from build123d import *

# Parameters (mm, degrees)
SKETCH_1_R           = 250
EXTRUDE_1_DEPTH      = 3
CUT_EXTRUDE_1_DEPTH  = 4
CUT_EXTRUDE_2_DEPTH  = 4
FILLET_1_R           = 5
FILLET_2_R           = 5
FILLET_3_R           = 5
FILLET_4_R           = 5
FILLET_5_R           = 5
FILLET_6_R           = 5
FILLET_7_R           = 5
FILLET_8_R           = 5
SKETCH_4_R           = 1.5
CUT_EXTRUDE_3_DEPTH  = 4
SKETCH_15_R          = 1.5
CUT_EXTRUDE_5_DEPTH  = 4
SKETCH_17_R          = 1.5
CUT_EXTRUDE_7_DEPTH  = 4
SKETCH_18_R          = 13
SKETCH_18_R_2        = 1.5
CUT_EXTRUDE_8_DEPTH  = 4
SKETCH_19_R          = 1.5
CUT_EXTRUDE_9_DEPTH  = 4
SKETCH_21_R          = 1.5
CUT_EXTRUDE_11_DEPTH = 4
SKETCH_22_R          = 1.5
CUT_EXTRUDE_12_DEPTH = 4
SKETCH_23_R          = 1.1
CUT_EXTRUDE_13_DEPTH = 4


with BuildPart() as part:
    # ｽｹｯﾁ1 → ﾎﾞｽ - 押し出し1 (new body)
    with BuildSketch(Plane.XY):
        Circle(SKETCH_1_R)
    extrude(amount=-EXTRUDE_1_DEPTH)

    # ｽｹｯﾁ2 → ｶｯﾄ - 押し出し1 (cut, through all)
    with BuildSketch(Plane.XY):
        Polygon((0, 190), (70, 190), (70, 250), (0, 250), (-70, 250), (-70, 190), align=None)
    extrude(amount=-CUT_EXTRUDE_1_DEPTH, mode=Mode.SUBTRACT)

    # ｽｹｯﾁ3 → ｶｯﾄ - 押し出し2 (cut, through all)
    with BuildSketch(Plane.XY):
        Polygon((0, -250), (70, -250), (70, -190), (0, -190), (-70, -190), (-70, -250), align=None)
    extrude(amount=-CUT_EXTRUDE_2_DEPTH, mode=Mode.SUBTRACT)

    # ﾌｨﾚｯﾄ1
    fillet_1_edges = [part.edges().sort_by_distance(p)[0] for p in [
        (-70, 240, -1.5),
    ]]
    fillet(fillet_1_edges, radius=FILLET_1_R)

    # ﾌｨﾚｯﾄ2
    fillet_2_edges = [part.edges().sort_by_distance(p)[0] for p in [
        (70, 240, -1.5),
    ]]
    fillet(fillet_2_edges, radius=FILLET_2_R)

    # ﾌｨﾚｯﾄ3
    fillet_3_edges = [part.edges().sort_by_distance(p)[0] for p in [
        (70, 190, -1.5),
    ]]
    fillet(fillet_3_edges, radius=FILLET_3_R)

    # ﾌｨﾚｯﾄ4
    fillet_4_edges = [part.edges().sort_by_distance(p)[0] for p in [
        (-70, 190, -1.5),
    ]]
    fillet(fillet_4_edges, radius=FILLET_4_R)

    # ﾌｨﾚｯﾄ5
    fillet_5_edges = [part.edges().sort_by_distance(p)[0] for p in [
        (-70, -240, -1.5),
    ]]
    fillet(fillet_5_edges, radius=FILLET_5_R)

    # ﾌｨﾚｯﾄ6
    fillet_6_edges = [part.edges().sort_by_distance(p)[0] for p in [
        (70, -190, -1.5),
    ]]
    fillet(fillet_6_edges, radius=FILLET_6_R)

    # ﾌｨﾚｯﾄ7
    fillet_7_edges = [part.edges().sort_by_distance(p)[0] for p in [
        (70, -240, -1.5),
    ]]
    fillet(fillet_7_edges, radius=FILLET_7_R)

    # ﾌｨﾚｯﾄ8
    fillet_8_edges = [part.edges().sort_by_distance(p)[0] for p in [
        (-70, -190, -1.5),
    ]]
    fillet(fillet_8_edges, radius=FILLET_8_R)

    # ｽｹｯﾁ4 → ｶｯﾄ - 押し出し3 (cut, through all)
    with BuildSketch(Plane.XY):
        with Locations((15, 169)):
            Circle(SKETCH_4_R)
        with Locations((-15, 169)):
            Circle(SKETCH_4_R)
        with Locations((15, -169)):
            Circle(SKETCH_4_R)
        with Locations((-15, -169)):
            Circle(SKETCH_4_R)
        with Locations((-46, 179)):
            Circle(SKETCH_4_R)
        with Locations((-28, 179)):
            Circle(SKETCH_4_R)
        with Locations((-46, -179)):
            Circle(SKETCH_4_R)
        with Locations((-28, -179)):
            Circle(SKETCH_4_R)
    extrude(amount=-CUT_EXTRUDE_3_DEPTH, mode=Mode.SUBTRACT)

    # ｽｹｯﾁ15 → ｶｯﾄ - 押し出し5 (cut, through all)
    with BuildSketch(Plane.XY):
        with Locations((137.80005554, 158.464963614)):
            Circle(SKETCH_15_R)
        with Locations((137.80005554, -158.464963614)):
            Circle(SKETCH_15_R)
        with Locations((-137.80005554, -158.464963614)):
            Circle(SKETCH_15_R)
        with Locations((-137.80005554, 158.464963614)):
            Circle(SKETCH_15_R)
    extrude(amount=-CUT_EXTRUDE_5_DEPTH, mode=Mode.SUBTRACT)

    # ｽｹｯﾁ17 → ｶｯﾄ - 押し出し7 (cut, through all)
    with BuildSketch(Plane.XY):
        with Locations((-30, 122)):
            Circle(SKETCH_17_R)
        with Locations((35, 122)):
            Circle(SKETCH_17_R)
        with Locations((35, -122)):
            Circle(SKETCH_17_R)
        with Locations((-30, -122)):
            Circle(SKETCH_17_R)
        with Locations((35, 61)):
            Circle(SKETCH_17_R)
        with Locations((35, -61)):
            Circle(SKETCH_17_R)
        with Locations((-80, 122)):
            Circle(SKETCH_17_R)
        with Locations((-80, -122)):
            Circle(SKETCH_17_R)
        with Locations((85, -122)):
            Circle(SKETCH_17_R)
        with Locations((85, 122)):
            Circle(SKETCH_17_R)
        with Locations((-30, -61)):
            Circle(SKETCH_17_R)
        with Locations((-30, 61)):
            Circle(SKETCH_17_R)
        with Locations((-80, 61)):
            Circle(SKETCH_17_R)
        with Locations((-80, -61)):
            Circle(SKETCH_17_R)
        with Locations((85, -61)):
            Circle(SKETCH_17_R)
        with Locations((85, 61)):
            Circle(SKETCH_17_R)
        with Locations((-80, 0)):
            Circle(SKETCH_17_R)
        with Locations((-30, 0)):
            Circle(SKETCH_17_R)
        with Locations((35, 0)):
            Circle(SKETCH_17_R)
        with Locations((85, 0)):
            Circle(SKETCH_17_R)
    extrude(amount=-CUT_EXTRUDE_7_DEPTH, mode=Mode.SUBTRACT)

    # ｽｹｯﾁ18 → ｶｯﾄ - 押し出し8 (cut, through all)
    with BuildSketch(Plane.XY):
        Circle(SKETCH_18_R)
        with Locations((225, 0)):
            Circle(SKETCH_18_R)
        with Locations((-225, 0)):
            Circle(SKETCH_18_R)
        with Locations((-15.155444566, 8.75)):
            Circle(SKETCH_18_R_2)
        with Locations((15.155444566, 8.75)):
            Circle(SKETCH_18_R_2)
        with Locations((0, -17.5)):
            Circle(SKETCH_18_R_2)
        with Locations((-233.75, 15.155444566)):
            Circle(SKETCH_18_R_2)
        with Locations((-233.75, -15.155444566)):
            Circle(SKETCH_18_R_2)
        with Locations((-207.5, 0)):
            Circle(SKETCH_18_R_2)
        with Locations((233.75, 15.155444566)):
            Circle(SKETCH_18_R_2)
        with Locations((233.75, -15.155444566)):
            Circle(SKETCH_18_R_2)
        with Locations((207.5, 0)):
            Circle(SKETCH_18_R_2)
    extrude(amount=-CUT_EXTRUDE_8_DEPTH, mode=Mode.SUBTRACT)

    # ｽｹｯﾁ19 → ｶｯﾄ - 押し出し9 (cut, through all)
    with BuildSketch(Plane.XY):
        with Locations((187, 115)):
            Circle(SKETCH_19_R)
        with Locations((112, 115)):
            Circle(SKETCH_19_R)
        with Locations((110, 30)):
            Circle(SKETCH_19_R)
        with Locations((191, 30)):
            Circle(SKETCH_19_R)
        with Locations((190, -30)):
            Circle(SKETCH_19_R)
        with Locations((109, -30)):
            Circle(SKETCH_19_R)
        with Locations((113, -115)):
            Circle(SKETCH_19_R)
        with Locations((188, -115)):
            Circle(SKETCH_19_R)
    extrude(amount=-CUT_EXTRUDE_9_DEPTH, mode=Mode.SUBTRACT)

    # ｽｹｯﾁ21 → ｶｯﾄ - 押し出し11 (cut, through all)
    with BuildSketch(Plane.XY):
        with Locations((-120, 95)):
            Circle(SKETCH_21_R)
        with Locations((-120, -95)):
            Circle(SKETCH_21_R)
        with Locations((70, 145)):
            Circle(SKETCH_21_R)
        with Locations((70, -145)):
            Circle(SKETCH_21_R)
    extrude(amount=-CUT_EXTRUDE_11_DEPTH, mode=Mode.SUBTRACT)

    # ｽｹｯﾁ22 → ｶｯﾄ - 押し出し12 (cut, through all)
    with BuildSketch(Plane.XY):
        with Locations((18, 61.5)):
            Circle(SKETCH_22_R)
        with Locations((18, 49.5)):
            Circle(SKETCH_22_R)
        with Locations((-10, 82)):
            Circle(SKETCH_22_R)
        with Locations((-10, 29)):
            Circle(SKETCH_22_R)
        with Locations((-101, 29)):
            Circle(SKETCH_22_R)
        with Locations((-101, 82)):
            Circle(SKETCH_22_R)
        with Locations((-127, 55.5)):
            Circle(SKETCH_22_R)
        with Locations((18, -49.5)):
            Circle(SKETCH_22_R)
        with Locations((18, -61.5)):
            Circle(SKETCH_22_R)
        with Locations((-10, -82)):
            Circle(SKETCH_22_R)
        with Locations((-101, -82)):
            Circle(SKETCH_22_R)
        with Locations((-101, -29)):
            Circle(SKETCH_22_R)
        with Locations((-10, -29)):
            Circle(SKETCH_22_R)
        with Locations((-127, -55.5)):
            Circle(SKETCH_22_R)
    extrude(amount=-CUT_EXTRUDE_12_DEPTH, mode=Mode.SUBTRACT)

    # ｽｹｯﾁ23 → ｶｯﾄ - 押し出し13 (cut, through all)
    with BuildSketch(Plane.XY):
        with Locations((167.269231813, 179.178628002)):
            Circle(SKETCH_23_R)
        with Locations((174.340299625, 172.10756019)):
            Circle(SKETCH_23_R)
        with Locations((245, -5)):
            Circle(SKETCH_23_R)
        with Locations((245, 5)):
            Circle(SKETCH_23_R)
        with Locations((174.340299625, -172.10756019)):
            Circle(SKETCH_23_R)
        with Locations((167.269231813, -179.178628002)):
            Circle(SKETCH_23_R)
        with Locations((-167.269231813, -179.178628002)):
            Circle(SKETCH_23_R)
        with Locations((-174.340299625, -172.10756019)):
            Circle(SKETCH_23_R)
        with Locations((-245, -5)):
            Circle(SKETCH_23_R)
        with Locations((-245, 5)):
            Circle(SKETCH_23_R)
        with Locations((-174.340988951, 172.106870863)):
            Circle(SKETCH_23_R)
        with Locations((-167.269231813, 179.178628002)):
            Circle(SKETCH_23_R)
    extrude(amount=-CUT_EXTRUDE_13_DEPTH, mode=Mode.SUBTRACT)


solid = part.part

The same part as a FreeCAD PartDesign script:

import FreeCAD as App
import Part
import Sketcher


def edges_at(feature, points):
    """Names of the edges that pass closest to the given points."""
    edges = feature.Shape.Edges
    near = lambda p: min(range(len(edges)), key=lambda i: edges[i].distToShape(Part.Vertex(*p))[0])
    return sorted({f"Edge{near(p) + 1}" for p in points})


def add_polygon(sketch, points):
    """Adds a closed chain of lines whose ends are joined by coincident constraints."""
    first, n = sketch.GeometryCount, len(points)
    for a, b in zip(points, points[1:] + points[:1]):
        sketch.addGeometry(Part.LineSegment(App.Vector(*a, 0), App.Vector(*b, 0)), False)
    for i in range(n):
        sketch.addConstraint(Sketcher.Constraint("Coincident", first + i, 2, first + (i + 1) % n, 1))

doc = App.newDocument("Part")
body = doc.addObject("PartDesign::Body", "Body")

# Sketch on XY plane
sketch1 = body.newObject("Sketcher::SketchObject", "Sketch")
sketch1.AttachmentSupport = (doc.getObject("XY_Plane"), [""])
sketch1.MapMode = "FlatFace"
sketch1.addGeometry(Part.Circle(App.Vector(0, 0, 0), App.Vector(0, 0, 1), 250), False)
sketch1.addConstraint([
    Sketcher.Constraint("Coincident", 0, 3, -1, 1),
    Sketcher.Constraint("Diameter", 0, 500.0),
])
pad1 = body.newObject("PartDesign::Pad", "Pad")
pad1.Profile = sketch1
pad1.Length = 3
pad1.Reversed = True

# Sketch on XY plane
sketch2 = body.newObject("Sketcher::SketchObject", "Sketch001")
sketch2.AttachmentSupport = (doc.getObject("XY_Plane"), [""])
sketch2.MapMode = "FlatFace"
add_polygon(sketch2, [(70, 190), (70, 250), (-70, 250), (-70, 190)])  # lines 0-3
sketch2.addConstraint([
    Sketcher.Constraint("Vertical", 0),
    Sketcher.Constraint("Horizontal", 1),
    Sketcher.Constraint("Vertical", 2),
    Sketcher.Constraint("Horizontal", 3),
    Sketcher.Constraint("DistanceX", 1, 2, 1, 1, 140.0),
    Sketcher.Constraint("DistanceY", 0, 1, 0, 2, 60.0),
    Sketcher.Constraint("DistanceX", -1, 1, 0, 2, 70.0),
    Sketcher.Constraint("DistanceY", -1, 1, 0, 2, 250.0),
])
pocket1 = body.newObject("PartDesign::Pocket", "Pocket")
pocket1.Profile = sketch2
pocket1.Type = "ThroughAll"

# Sketch on XY plane
sketch3 = body.newObject("Sketcher::SketchObject", "Sketch002")
sketch3.AttachmentSupport = (doc.getObject("XY_Plane"), [""])
sketch3.MapMode = "FlatFace"
add_polygon(sketch3, [(70, -250), (70, -190), (-70, -190), (-70, -250)])  # lines 0-3
sketch3.addConstraint([
    Sketcher.Constraint("Vertical", 0),
    Sketcher.Constraint("Horizontal", 1),
    Sketcher.Constraint("Vertical", 2),
    Sketcher.Constraint("Horizontal", 3),
    Sketcher.Constraint("DistanceX", 1, 2, 1, 1, 140.0),
    Sketcher.Constraint("DistanceY", 0, 1, 0, 2, 60.0),
    Sketcher.Constraint("DistanceX", -1, 1, 0, 2, 70.0),
    Sketcher.Constraint("DistanceY", 0, 2, -1, 1, 190.0),
])
pocket2 = body.newObject("PartDesign::Pocket", "Pocket001")
pocket2.Profile = sketch3
pocket2.Type = "ThroughAll"
doc.recompute()

fillet = body.newObject("PartDesign::Fillet", "Fillet")
fillet.Base = (pocket2, edges_at(pocket2, [(-70, 240, -1.5)]))
fillet.Radius = 5
doc.recompute()

fillet2 = body.newObject("PartDesign::Fillet", "Fillet001")
fillet2.Base = (fillet, edges_at(fillet, [(70, 240, -1.5)]))
fillet2.Radius = 5
doc.recompute()

fillet3 = body.newObject("PartDesign::Fillet", "Fillet002")
fillet3.Base = (fillet2, edges_at(fillet2, [(70, 190, -1.5)]))
fillet3.Radius = 5
doc.recompute()

fillet4 = body.newObject("PartDesign::Fillet", "Fillet003")
fillet4.Base = (fillet3, edges_at(fillet3, [(-70, 190, -1.5)]))
fillet4.Radius = 5
doc.recompute()

fillet5 = body.newObject("PartDesign::Fillet", "Fillet004")
fillet5.Base = (fillet4, edges_at(fillet4, [(-70, -240, -1.5)]))
fillet5.Radius = 5
doc.recompute()

fillet6 = body.newObject("PartDesign::Fillet", "Fillet005")
fillet6.Base = (fillet5, edges_at(fillet5, [(70, -190, -1.5)]))
fillet6.Radius = 5
doc.recompute()

fillet7 = body.newObject("PartDesign::Fillet", "Fillet006")
fillet7.Base = (fillet6, edges_at(fillet6, [(70, -240, -1.5)]))
fillet7.Radius = 5
doc.recompute()

fillet8 = body.newObject("PartDesign::Fillet", "Fillet007")
fillet8.Base = (fillet7, edges_at(fillet7, [(-70, -190, -1.5)]))
fillet8.Radius = 5

# Sketch on XY plane
sketch4 = body.newObject("Sketcher::SketchObject", "Sketch003")
sketch4.AttachmentSupport = (doc.getObject("XY_Plane"), [""])
sketch4.MapMode = "FlatFace"
sketch4.addGeometry([
    Part.Circle(App.Vector(15, 169, 0), App.Vector(0, 0, 1), 1.5),  # 0
    Part.Circle(App.Vector(-15, 169, 0), App.Vector(0, 0, 1), 1.5),  # 1
    Part.Circle(App.Vector(15, -169, 0), App.Vector(0, 0, 1), 1.5),  # 2
    Part.Circle(App.Vector(-15, -169, 0), App.Vector(0, 0, 1), 1.5),  # 3
    Part.Circle(App.Vector(-46, 179, 0), App.Vector(0, 0, 1), 1.5),  # 4
    Part.Circle(App.Vector(-28, 179, 0), App.Vector(0, 0, 1), 1.5),  # 5
    Part.Circle(App.Vector(-46, -179, 0), App.Vector(0, 0, 1), 1.5),  # 6
    Part.Circle(App.Vector(-28, -179, 0), App.Vector(0, 0, 1), 1.5),  # 7
], False)
sketch4.addConstraint([
    Sketcher.Constraint("Equal", 0, 1),
    Sketcher.Constraint("Equal", 1, 2),
    Sketcher.Constraint("Equal", 2, 3),
    Sketcher.Constraint("Equal", 3, 4),
    Sketcher.Constraint("Equal", 4, 5),
    Sketcher.Constraint("Equal", 5, 6),
    Sketcher.Constraint("Equal", 6, 7),
    Sketcher.Constraint("Symmetric", 1, 3, 2, 3, -1, 1),
    Sketcher.Constraint("Symmetric", 0, 3, 3, 3, -1, 1),
    Sketcher.Constraint("Symmetric", 0, 3, 1, 3, -2),
    Sketcher.Constraint("Symmetric", 4, 3, 6, 3, -1),
    Sketcher.Constraint("Symmetric", 5, 3, 7, 3, -1),
    Sketcher.Constraint("Horizontal", 4, 3, 5, 3),
    Sketcher.Constraint("Diameter", 0, 3.0),
    Sketcher.Constraint("DistanceX", -1, 1, 0, 3, 15.0),
    Sketcher.Constraint("DistanceY", -1, 1, 0, 3, 169.0),
    Sketcher.Constraint("DistanceX", 4, 3, -1, 1, 46.0),
    Sketcher.Constraint("DistanceY", -1, 1, 4, 3, 179.0),
    Sketcher.Constraint("DistanceX", 5, 3, -1, 1, 28.0),
])
pocket3 = body.newObject("PartDesign::Pocket", "Pocket002")
pocket3.Profile = sketch4
pocket3.Type = "ThroughAll"

# Sketch on XY plane
sketch5 = body.newObject("Sketcher::SketchObject", "Sketch004")
sketch5.AttachmentSupport = (doc.getObject("XY_Plane"), [""])
sketch5.MapMode = "FlatFace"
sketch5.addGeometry([
    Part.Circle(App.Vector(137.800056, 158.464964, 0), App.Vector(0, 0, 1), 1.5),
    Part.Circle(App.Vector(137.800056, -158.464964, 0), App.Vector(0, 0, 1), 1.5),
    Part.Circle(App.Vector(-137.800056, -158.464964, 0), App.Vector(0, 0, 1), 1.5),
    Part.Circle(App.Vector(-137.800056, 158.464964, 0), App.Vector(0, 0, 1), 1.5),
], False)
sketch5.addConstraint([
    Sketcher.Constraint("Equal", 0, 1),
    Sketcher.Constraint("Equal", 1, 2),
    Sketcher.Constraint("Equal", 2, 3),
    Sketcher.Constraint("Symmetric", 0, 3, 2, 3, -1, 1),
    Sketcher.Constraint("Symmetric", 1, 3, 3, 3, -1, 1),
    Sketcher.Constraint("Symmetric", 1, 3, 2, 3, -2),
    Sketcher.Constraint("Diameter", 0, 3.0),
    Sketcher.Constraint("DistanceX", 2, 3, 1, 3, 275.600111),
    Sketcher.Constraint("DistanceY", -1, 1, 0, 3, 158.464964),
])
pocket4 = body.newObject("PartDesign::Pocket", "Pocket003")
pocket4.Profile = sketch5
pocket4.Type = "ThroughAll"

# Sketch on XY plane
sketch6 = body.newObject("Sketcher::SketchObject", "Sketch005")
sketch6.AttachmentSupport = (doc.getObject("XY_Plane"), [""])
sketch6.MapMode = "FlatFace"
sketch6.addGeometry([
    Part.Circle(App.Vector(-30, 122, 0), App.Vector(0, 0, 1), 1.5),  # 0
    Part.Circle(App.Vector(35, 122, 0), App.Vector(0, 0, 1), 1.5),  # 1
    Part.Circle(App.Vector(35, -122, 0), App.Vector(0, 0, 1), 1.5),  # 2
    Part.Circle(App.Vector(-30, -122, 0), App.Vector(0, 0, 1), 1.5),  # 3
    Part.Circle(App.Vector(35, 61, 0), App.Vector(0, 0, 1), 1.5),  # 4
    Part.Circle(App.Vector(35, -61, 0), App.Vector(0, 0, 1), 1.5),  # 5
    Part.Circle(App.Vector(-80, 122, 0), App.Vector(0, 0, 1), 1.5),  # 6
    Part.Circle(App.Vector(-80, -122, 0), App.Vector(0, 0, 1), 1.5),  # 7
    Part.Circle(App.Vector(85, -122, 0), App.Vector(0, 0, 1), 1.5),  # 8
    Part.Circle(App.Vector(85, 122, 0), App.Vector(0, 0, 1), 1.5),  # 9
    Part.Circle(App.Vector(-30, -61, 0), App.Vector(0, 0, 1), 1.5),  # 10
    Part.Circle(App.Vector(-30, 61, 0), App.Vector(0, 0, 1), 1.5),  # 11
    Part.Circle(App.Vector(-80, 61, 0), App.Vector(0, 0, 1), 1.5),  # 12
    Part.Circle(App.Vector(-80, -61, 0), App.Vector(0, 0, 1), 1.5),  # 13
    Part.Circle(App.Vector(85, -61, 0), App.Vector(0, 0, 1), 1.5),  # 14
    Part.Circle(App.Vector(85, 61, 0), App.Vector(0, 0, 1), 1.5),  # 15
    Part.Circle(App.Vector(-80, 0, 0), App.Vector(0, 0, 1), 1.5),  # 16
    Part.Circle(App.Vector(-30, 0, 0), App.Vector(0, 0, 1), 1.5),  # 17
    Part.Circle(App.Vector(35, 0, 0), App.Vector(0, 0, 1), 1.5),  # 18
    Part.Circle(App.Vector(85, 0, 0), App.Vector(0, 0, 1), 1.5),  # 19
], False)
sketch6.addConstraint([
    Sketcher.Constraint("Equal", 0, 1),
    Sketcher.Constraint("Equal", 1, 2),
    Sketcher.Constraint("Equal", 2, 3),
    Sketcher.Constraint("Equal", 3, 4),
    Sketcher.Constraint("Equal", 4, 5),
    Sketcher.Constraint("Equal", 5, 6),
    Sketcher.Constraint("Equal", 6, 7),
    Sketcher.Constraint("Equal", 7, 8),
    Sketcher.Constraint("Equal", 8, 9),
    Sketcher.Constraint("Equal", 9, 10),
    Sketcher.Constraint("Equal", 10, 11),
    Sketcher.Constraint("Equal", 11, 12),
    Sketcher.Constraint("Equal", 12, 13),
    Sketcher.Constraint("Equal", 13, 14),
    Sketcher.Constraint("Equal", 14, 15),
    Sketcher.Constraint("Equal", 15, 16),
    Sketcher.Constraint("Equal", 16, 17),
    Sketcher.Constraint("Equal", 17, 18),
    Sketcher.Constraint("Equal", 18, 19),
    Sketcher.Constraint("Symmetric", 1, 3, 2, 3, -1),
    Sketcher.Constraint("Symmetric", 0, 3, 3, 3, -1),
    Sketcher.Constraint("Symmetric", 4, 3, 5, 3, -1),
    Sketcher.Constraint("Symmetric", 6, 3, 7, 3, -1),
    Sketcher.Constraint("Symmetric", 8, 3, 9, 3, -1),
    Sketcher.Constraint("Symmetric", 10, 3, 11, 3, -1),
    Sketcher.Constraint("Symmetric", 12, 3, 13, 3, -1),
    Sketcher.Constraint("Symmetric", 14, 3, 15, 3, -1),
    Sketcher.Constraint("PointOnObject", 16, 3, -1),
    Sketcher.Constraint("PointOnObject", 17, 3, -1),
    Sketcher.Constraint("PointOnObject", 18, 3, -1),
    Sketcher.Constraint("PointOnObject", 19, 3, -1),
    Sketcher.Constraint("Horizontal", 0, 3, 1, 3),
    Sketcher.Constraint("Horizontal", 1, 3, 6, 3),
    Sketcher.Constraint("Horizontal", 7, 3, 8, 3),
    Sketcher.Constraint("Horizontal", 5, 3, 10, 3),
    Sketcher.Constraint("Horizontal", 11, 3, 12, 3),
    Sketcher.Constraint("Horizontal", 13, 3, 14, 3),
    Sketcher.Constraint("Vertical", 2, 3, 4, 3),
    Sketcher.Constraint("Vertical", 3, 3, 10, 3),
    Sketcher.Constraint("Vertical", 7, 3, 12, 3),
    Sketcher.Constraint("Vertical", 9, 3, 14, 3),
    Sketcher.Constraint("Vertical", 13, 3, 16, 3),
    Sketcher.Constraint("Vertical", 11, 3, 17, 3),
    Sketcher.Constraint("Vertical", 5, 3, 18, 3),
    Sketcher.Constraint("Vertical", 15, 3, 19, 3),
    Sketcher.Constraint("Diameter", 0, 3.0),
    Sketcher.Constraint("DistanceX", 0, 3, -1, 1, 30.0),
    Sketcher.Constraint("DistanceY", -1, 1, 0, 3, 122.0),
    Sketcher.Constraint("DistanceX", -1, 1, 1, 3, 35.0),
    Sketcher.Constraint("DistanceY", -1, 1, 4, 3, 61.0),
    Sketcher.Constraint("DistanceX", 6, 3, -1, 1, 80.0),
    Sketcher.Constraint("DistanceX", -1, 1, 8, 3, 85.0),
])
pocket5 = body.newObject("PartDesign::Pocket", "Pocket004")
pocket5.Profile = sketch6
pocket5.Type = "ThroughAll"

# Sketch on XY plane
sketch7 = body.newObject("Sketcher::SketchObject", "Sketch006")
sketch7.AttachmentSupport = (doc.getObject("XY_Plane"), [""])
sketch7.MapMode = "FlatFace"
sketch7.addGeometry([
    Part.Circle(App.Vector(0, 0, 0), App.Vector(0, 0, 1), 13),  # 0
    Part.Circle(App.Vector(225, 0, 0), App.Vector(0, 0, 1), 13),  # 1
    Part.Circle(App.Vector(-225, 0, 0), App.Vector(0, 0, 1), 13),  # 2
    Part.Circle(App.Vector(-15.155445, 8.75, 0), App.Vector(0, 0, 1), 1.5),  # 3
    Part.Circle(App.Vector(15.155445, 8.75, 0), App.Vector(0, 0, 1), 1.5),  # 4
    Part.Circle(App.Vector(0, -17.5, 0), App.Vector(0, 0, 1), 1.5),  # 5
    Part.Circle(App.Vector(-233.75, 15.155445, 0), App.Vector(0, 0, 1), 1.5),  # 6
    Part.Circle(App.Vector(-233.75, -15.155445, 0), App.Vector(0, 0, 1), 1.5),  # 7
    Part.Circle(App.Vector(-207.5, 0, 0), App.Vector(0, 0, 1), 1.5),  # 8
    Part.Circle(App.Vector(233.75, 15.155445, 0), App.Vector(0, 0, 1), 1.5),  # 9
    Part.Circle(App.Vector(233.75, -15.155445, 0), App.Vector(0, 0, 1), 1.5),  # 10
    Part.Circle(App.Vector(207.5, 0, 0), App.Vector(0, 0, 1), 1.5),  # 11
], False)
sketch7.addConstraint([
    Sketcher.Constraint("Coincident", 0, 3, -1, 1),
    Sketcher.Constraint("Equal", 0, 1),
    Sketcher.Constraint("Equal", 1, 2),
    Sketcher.Constraint("Equal", 3, 4),
    Sketcher.Constraint("Equal", 4, 5),
    Sketcher.Constraint("Equal", 5, 6),
    Sketcher.Constraint("Equal", 6, 7),
    Sketcher.Constraint("Equal", 7, 8),
    Sketcher.Constraint("Equal", 8, 9),
    Sketcher.Constraint("Equal", 9, 10),
    Sketcher.Constraint("Equal", 10, 11),
    Sketcher.Constraint("Symmetric", 1, 3, 2, 3, -1, 1),
    Sketcher.Constraint("Symmetric", 7, 3, 9, 3, -1, 1),
    Sketcher.Constraint("Symmetric", 6, 3, 10, 3, -1, 1),
    Sketcher.Constraint("Symmetric", 8, 3, 11, 3, -1, 1),
    Sketcher.Constraint("Symmetric", 3, 3, 4, 3, -2),
    Sketcher.Constraint("Symmetric", 6, 3, 9, 3, -2),
    Sketcher.Constraint("PointOnObject", 1, 3, -1),
    Sketcher.Constraint("PointOnObject", 5, 3, -2),
    Sketcher.Constraint("PointOnObject", 8, 3, -1),
    Sketcher.Constraint("Diameter", 0, 26.0),
    Sketcher.Constraint("Diameter", 3, 3.0),
    Sketcher.Constraint("DistanceX", -1, 1, 1, 3, 225.0),
    Sketcher.Constraint("DistanceY", 5, 3, -1, 1, 17.5),
    Sketcher.Constraint("DistanceX", 8, 3, -1, 1, 207.5),
    Sketcher.Constraint("DistanceY", -1, 1, 3, 3, 8.75),
    Sketcher.Constraint("DistanceX", 6, 3, -1, 1, 233.75),
    Sketcher.Constraint("DistanceX", 3, 3, 4, 3, 30.310889),
    Sketcher.Constraint("DistanceY", 7, 3, 6, 3, 30.310889),
])
pocket6 = body.newObject("PartDesign::Pocket", "Pocket005")
pocket6.Profile = sketch7
pocket6.Type = "ThroughAll"

# Sketch on XY plane
sketch8 = body.newObject("Sketcher::SketchObject", "Sketch007")
sketch8.AttachmentSupport = (doc.getObject("XY_Plane"), [""])
sketch8.MapMode = "FlatFace"
sketch8.addGeometry([
    Part.Circle(App.Vector(187, 115, 0), App.Vector(0, 0, 1), 1.5),  # 0
    Part.Circle(App.Vector(112, 115, 0), App.Vector(0, 0, 1), 1.5),  # 1
    Part.Circle(App.Vector(110, 30, 0), App.Vector(0, 0, 1), 1.5),  # 2
    Part.Circle(App.Vector(191, 30, 0), App.Vector(0, 0, 1), 1.5),  # 3
    Part.Circle(App.Vector(190, -30, 0), App.Vector(0, 0, 1), 1.5),  # 4
    Part.Circle(App.Vector(109, -30, 0), App.Vector(0, 0, 1), 1.5),  # 5
    Part.Circle(App.Vector(113, -115, 0), App.Vector(0, 0, 1), 1.5),  # 6
    Part.Circle(App.Vector(188, -115, 0), App.Vector(0, 0, 1), 1.5),  # 7
], False)
sketch8.addConstraint([
    Sketcher.Constraint("Equal", 0, 1),
    Sketcher.Constraint("Equal", 1, 2),
    Sketcher.Constraint("Equal", 2, 3),
    Sketcher.Constraint("Equal", 3, 4),
    Sketcher.Constraint("Equal", 4, 5),
    Sketcher.Constraint("Equal", 5, 6),
    Sketcher.Constraint("Equal", 6, 7),
    Sketcher.Constraint("Horizontal", 0, 3, 1, 3),
    Sketcher.Constraint("Horizontal", 2, 3, 3, 3),
    Sketcher.Constraint("Horizontal", 4, 3, 5, 3),
    Sketcher.Constraint("Horizontal", 6, 3, 7, 3),
    Sketcher.Constraint("Diameter", 0, 3.0),
    Sketcher.Constraint("DistanceX", -1, 1, 0, 3, 187.0),
    Sketcher.Constraint("DistanceY", -1, 1, 0, 3, 115.0),
    Sketcher.Constraint("DistanceX", -1, 1, 1, 3, 112.0),
    Sketcher.Constraint("DistanceX", -1, 1, 2, 3, 110.0),
    Sketcher.Constraint("DistanceY", -1, 1, 2, 3, 30.0),
    Sketcher.Constraint("DistanceX", -1, 1, 3, 3, 191.0),
    Sketcher.Constraint("DistanceX", -1, 1, 4, 3, 190.0),
    Sketcher.Constraint("DistanceY", 4, 3, -1, 1, 30.0),
    Sketcher.Constraint("DistanceX", -1, 1, 5, 3, 109.0),
    Sketcher.Constraint("DistanceX", -1, 1, 6, 3, 113.0),
    Sketcher.Constraint("DistanceY", 6, 3, -1, 1, 115.0),
    Sketcher.Constraint("DistanceX", -1, 1, 7, 3, 188.0),
])
pocket7 = body.newObject("PartDesign::Pocket", "Pocket006")
pocket7.Profile = sketch8
pocket7.Type = "ThroughAll"

# Sketch on XY plane
sketch9 = body.newObject("Sketcher::SketchObject", "Sketch008")
sketch9.AttachmentSupport = (doc.getObject("XY_Plane"), [""])
sketch9.MapMode = "FlatFace"
sketch9.addGeometry([
    Part.Circle(App.Vector(-120, 95, 0), App.Vector(0, 0, 1), 1.5),
    Part.Circle(App.Vector(-120, -95, 0), App.Vector(0, 0, 1), 1.5),
    Part.Circle(App.Vector(70, 145, 0), App.Vector(0, 0, 1), 1.5),
    Part.Circle(App.Vector(70, -145, 0), App.Vector(0, 0, 1), 1.5),
], False)
sketch9.addConstraint([
    Sketcher.Constraint("Equal", 0, 1),
    Sketcher.Constraint("Equal", 1, 2),
    Sketcher.Constraint("Equal", 2, 3),
    Sketcher.Constraint("Symmetric", 0, 3, 1, 3, -1),
    Sketcher.Constraint("Symmetric", 2, 3, 3, 3, -1),
    Sketcher.Constraint("Diameter", 0, 3.0),
    Sketcher.Constraint("DistanceX", 0, 3, -1, 1, 120.0),
    Sketcher.Constraint("DistanceY", -1, 1, 0, 3, 95.0),
    Sketcher.Constraint("DistanceX", -1, 1, 2, 3, 70.0),
    Sketcher.Constraint("DistanceY", -1, 1, 2, 3, 145.0),
])
pocket8 = body.newObject("PartDesign::Pocket", "Pocket007")
pocket8.Profile = sketch9
pocket8.Type = "ThroughAll"

# Sketch on XY plane
sketch10 = body.newObject("Sketcher::SketchObject", "Sketch009")
sketch10.AttachmentSupport = (doc.getObject("XY_Plane"), [""])
sketch10.MapMode = "FlatFace"
sketch10.addGeometry([
    Part.Circle(App.Vector(18, 61.5, 0), App.Vector(0, 0, 1), 1.5),  # 0
    Part.Circle(App.Vector(18, 49.5, 0), App.Vector(0, 0, 1), 1.5),  # 1
    Part.Circle(App.Vector(-10, 82, 0), App.Vector(0, 0, 1), 1.5),  # 2
    Part.Circle(App.Vector(-10, 29, 0), App.Vector(0, 0, 1), 1.5),  # 3
    Part.Circle(App.Vector(-101, 29, 0), App.Vector(0, 0, 1), 1.5),  # 4
    Part.Circle(App.Vector(-101, 82, 0), App.Vector(0, 0, 1), 1.5),  # 5
    Part.Circle(App.Vector(-127, 55.5, 0), App.Vector(0, 0, 1), 1.5),  # 6
    Part.Circle(App.Vector(18, -49.5, 0), App.Vector(0, 0, 1), 1.5),  # 7
    Part.Circle(App.Vector(18, -61.5, 0), App.Vector(0, 0, 1), 1.5),  # 8
    Part.Circle(App.Vector(-10, -82, 0), App.Vector(0, 0, 1), 1.5),  # 9
    Part.Circle(App.Vector(-101, -82, 0), App.Vector(0, 0, 1), 1.5),  # 10
    Part.Circle(App.Vector(-101, -29, 0), App.Vector(0, 0, 1), 1.5),  # 11
    Part.Circle(App.Vector(-10, -29, 0), App.Vector(0, 0, 1), 1.5),  # 12
    Part.Circle(App.Vector(-127, -55.5, 0), App.Vector(0, 0, 1), 1.5),  # 13
], False)
sketch10.addConstraint([
    Sketcher.Constraint("Equal", 0, 1),
    Sketcher.Constraint("Equal", 1, 2),
    Sketcher.Constraint("Equal", 2, 3),
    Sketcher.Constraint("Equal", 3, 4),
    Sketcher.Constraint("Equal", 4, 5),
    Sketcher.Constraint("Equal", 5, 6),
    Sketcher.Constraint("Equal", 6, 7),
    Sketcher.Constraint("Equal", 7, 8),
    Sketcher.Constraint("Equal", 8, 9),
    Sketcher.Constraint("Equal", 9, 10),
    Sketcher.Constraint("Equal", 10, 11),
    Sketcher.Constraint("Equal", 11, 12),
    Sketcher.Constraint("Equal", 12, 13),
    Sketcher.Constraint("Symmetric", 1, 3, 7, 3, -1),
    Sketcher.Constraint("Symmetric", 0, 3, 8, 3, -1),
    Sketcher.Constraint("Symmetric", 2, 3, 9, 3, -1),
    Sketcher.Constraint("Symmetric", 5, 3, 10, 3, -1),
    Sketcher.Constraint("Symmetric", 4, 3, 11, 3, -1),
    Sketcher.Constraint("Symmetric", 3, 3, 12, 3, -1),
    Sketcher.Constraint("Symmetric", 6, 3, 13, 3, -1),
    Sketcher.Constraint("Horizontal", 3, 3, 4, 3),
    Sketcher.Constraint("Horizontal", 2, 3, 5, 3),
    Sketcher.Constraint("Vertical", 0, 3, 1, 3),
    Sketcher.Constraint("Vertical", 2, 3, 3, 3),
    Sketcher.Constraint("Vertical", 4, 3, 5, 3),
    Sketcher.Constraint("Diameter", 0, 3.0),
    Sketcher.Constraint("DistanceX", -1, 1, 0, 3, 18.0),
    Sketcher.Constraint("DistanceX", 2, 3, -1, 1, 10.0),
    Sketcher.Constraint("DistanceY", -1, 1, 2, 3, 82.0),
    Sketcher.Constraint("DistanceY", -1, 1, 3, 3, 29.0),
    Sketcher.Constraint("DistanceX", 4, 3, -1, 1, 101.0),
    Sketcher.Constraint("DistanceX", 6, 3, -1, 1, 127.0),
    Sketcher.Constraint("DistanceY", 1, 3, 0, 3, 12.0),
    Sketcher.Constraint("DistanceY", 6, 3, 0, 3, 6.0),
    Sketcher.Constraint("DistanceY", 7, 3, 1, 3, 99.0),
])
pocket9 = body.newObject("PartDesign::Pocket", "Pocket008")
pocket9.Profile = sketch10
pocket9.Type = "ThroughAll"

# Sketch on XY plane
sketch11 = body.newObject("Sketcher::SketchObject", "Sketch010")
sketch11.AttachmentSupport = (doc.getObject("XY_Plane"), [""])
sketch11.MapMode = "FlatFace"
sketch11.addGeometry([
    Part.Circle(App.Vector(167.269232, 179.178628, 0), App.Vector(0, 0, 1), 1.1),  # 0
    Part.Circle(App.Vector(174.3403, 172.10756, 0), App.Vector(0, 0, 1), 1.1),  # 1
    Part.Circle(App.Vector(245, -5, 0), App.Vector(0, 0, 1), 1.1),  # 2
    Part.Circle(App.Vector(245, 5, 0), App.Vector(0, 0, 1), 1.1),  # 3
    Part.Circle(App.Vector(174.3403, -172.10756, 0), App.Vector(0, 0, 1), 1.1),  # 4
    Part.Circle(App.Vector(167.269232, -179.178628, 0), App.Vector(0, 0, 1), 1.1),  # 5
    Part.Circle(App.Vector(-167.269232, -179.178628, 0), App.Vector(0, 0, 1), 1.1),  # 6
    Part.Circle(App.Vector(-174.3403, -172.10756, 0), App.Vector(0, 0, 1), 1.1),  # 7
    Part.Circle(App.Vector(-245, -5, 0), App.Vector(0, 0, 1), 1.1),  # 8
    Part.Circle(App.Vector(-245, 5, 0), App.Vector(0, 0, 1), 1.1),  # 9
    Part.Circle(App.Vector(-174.340989, 172.106871, 0), App.Vector(0, 0, 1), 1.1),  # 10
    Part.Circle(App.Vector(-167.269232, 179.178628, 0), App.Vector(0, 0, 1), 1.1),  # 11
], False)
sketch11.addConstraint([
    Sketcher.Constraint("Equal", 0, 1),
    Sketcher.Constraint("Equal", 1, 2),
    Sketcher.Constraint("Equal", 2, 3),
    Sketcher.Constraint("Equal", 3, 4),
    Sketcher.Constraint("Equal", 4, 5),
    Sketcher.Constraint("Equal", 5, 6),
    Sketcher.Constraint("Equal", 6, 7),
    Sketcher.Constraint("Equal", 7, 8),
    Sketcher.Constraint("Equal", 8, 9),
    Sketcher.Constraint("Equal", 9, 10),
    Sketcher.Constraint("Equal", 10, 11),
    Sketcher.Constraint("Symmetric", 0, 3, 6, 3, -1, 1),
    Sketcher.Constraint("Symmetric", 1, 3, 7, 3, -1, 1),
    Sketcher.Constraint("Symmetric", 3, 3, 8, 3, -1, 1),
    Sketcher.Constraint("Symmetric", 2, 3, 9, 3, -1, 1),
    Sketcher.Constraint("Symmetric", 5, 3, 11, 3, -1, 1),
    Sketcher.Constraint("Symmetric", 5, 3, 6, 3, -2),
    Sketcher.Constraint("Symmetric", 4, 3, 7, 3, -2),
    Sketcher.Constraint("Symmetric", 2, 3, 8, 3, -2),
    Sketcher.Constraint("Diameter", 0, 2.2),
    Sketcher.Constraint("DistanceX", -1, 1, 2, 3, 245.0),
    Sketcher.Constraint("DistanceY", 2, 3, -1, 1, 5.0),
    Sketcher.Constraint("DistanceX", -1, 1, 1, 3, 174.3403),
    Sketcher.Constraint("DistanceX", -1, 1, 0, 3, 167.269232),
    Sketcher.Constraint("DistanceY", -1, 1, 0, 3, 179.178628),
    Sketcher.Constraint("DistanceY", -1, 1, 1, 3, 172.10756),
    Sketcher.Constraint("DistanceX", 10, 3, -1, 1, 174.340989),
    Sketcher.Constraint("DistanceY", -1, 1, 10, 3, 172.106871),
])
pocket10 = body.newObject("PartDesign::Pocket", "Pocket009")
pocket10.Profile = sketch11
pocket10.Type = "ThroughAll"

doc.recompute()
